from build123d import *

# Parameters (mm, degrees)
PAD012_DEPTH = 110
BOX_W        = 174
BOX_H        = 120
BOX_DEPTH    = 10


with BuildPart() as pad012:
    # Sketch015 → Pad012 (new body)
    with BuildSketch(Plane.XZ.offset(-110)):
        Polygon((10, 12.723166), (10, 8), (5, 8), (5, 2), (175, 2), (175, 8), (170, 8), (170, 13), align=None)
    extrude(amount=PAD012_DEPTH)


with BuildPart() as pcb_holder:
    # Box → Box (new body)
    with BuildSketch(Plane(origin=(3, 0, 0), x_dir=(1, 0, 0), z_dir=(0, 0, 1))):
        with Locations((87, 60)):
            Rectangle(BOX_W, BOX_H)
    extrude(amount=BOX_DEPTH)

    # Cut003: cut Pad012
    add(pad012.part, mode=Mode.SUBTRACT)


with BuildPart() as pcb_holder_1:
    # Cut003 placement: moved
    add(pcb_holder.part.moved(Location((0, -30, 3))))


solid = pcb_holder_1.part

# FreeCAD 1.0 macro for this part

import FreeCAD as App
import Part
import Sketcher


def add_polygon(sketch, points):
    """Adds a closed chain of lines whose ends are joined by coincident constraints."""
    first, n = sketch.GeometryCount, len(points)
    for a, b in zip(points, points[1:] + points[:1]):
        sketch.addGeometry(Part.LineSegment(App.Vector(*a, 0), App.Vector(*b, 0)), False)
    for i in range(n):
        sketch.addConstraint(Sketcher.Constraint("Coincident", first + i, 2, first + (i + 1) % n, 1))

doc = App.newDocument("Part")
body = doc.addObject("PartDesign::Body", "Body")

# Sketch on XZ plane
sketch1 = doc.addObject("Sketcher::SketchObject", "Sketch")
body.addObject(sketch1)
sketch1.AttachmentSupport = (doc.XZ_Plane, [""])
sketch1.MapMode = "FlatFace"
sketch1.AttachmentOffset = App.Placement(App.Vector(0, 0, -110), App.Rotation())
add_polygon(sketch1, [(10, 12.7), (10, 8), (5, 8), (5, 2), (175, 2), (175, 8), (170, 8), (170, 13)])  # lines 0-7
sketch1.addConstraint(Sketcher.Constraint("Vertical", 0))
sketch1.addConstraint(Sketcher.Constraint("Horizontal", 1))
sketch1.addConstraint(Sketcher.Constraint("Vertical", 2))
sketch1.addConstraint(Sketcher.Constraint("Horizontal", 3))
sketch1.addConstraint(Sketcher.Constraint("Vertical", 4))
sketch1.addConstraint(Sketcher.Constraint("Horizontal", 5))
sketch1.addConstraint(Sketcher.Constraint("Vertical", 6))
sketch1.addConstraint(Sketcher.Constraint("Horizontal", 1, 2, 4, 2))
sketch1.addConstraint(Sketcher.Constraint("Equal", 1, 5))
sketch1.addConstraint(Sketcher.Constraint("Equal", 5, 6))
sketch1.addConstraint(Sketcher.Constraint("DistanceX", 1, 2, 1, 1, 5.0))
sketch1.addConstraint(Sketcher.Constraint("DistanceX", 3, 1, 3, 2, 170.0))
sketch1.addConstraint(Sketcher.Constraint("DistanceY", 2, 2, 2, 1, 6.0))
sketch1.addConstraint(Sketcher.Constraint("DistanceX", -1, 1, 0, 2, 10.0))
sketch1.addConstraint(Sketcher.Constraint("DistanceY", -1, 1, 0, 2, 8.0))
sketch1.addConstraint(Sketcher.Constraint("DistanceY", 0, 2, 0, 1, 4.723166))
pad1 = doc.addObject("PartDesign::Pad", "Pad")
body.addObject(pad1)
pad1.Profile = sketch1
pad1.Length = 110
body2 = doc.addObject("PartDesign::Body", "Body001")

# Sketch on XY plane
sketch2 = doc.addObject("Sketcher::SketchObject", "Sketch001")
body2.addObject(sketch2)
sketch2.AttachmentSupport = (doc.getObject("XY_Plane001"), [""])
sketch2.MapMode = "FlatFace"
add_polygon(sketch2, [(3, 120), (3, 0), (177, 0), (177, 120)])  # lines 0-3
sketch2.addConstraint(Sketcher.Constraint("Vertical", 0))
sketch2.addConstraint(Sketcher.Constraint("Horizontal", 1))
sketch2.addConstraint(Sketcher.Constraint("Vertical", 2))
sketch2.addConstraint(Sketcher.Constraint("Horizontal", 3))
sketch2.addConstraint(Sketcher.Constraint("PointOnObject", 0, 2, -1))
sketch2.addConstraint(Sketcher.Constraint("DistanceX", 1, 1, 1, 2, 174.0))
sketch2.addConstraint(Sketcher.Constraint("DistanceY", 0, 2, 0, 1, 120.0))
sketch2.addConstraint(Sketcher.Constraint("DistanceX", -1, 1, 0, 2, 3.0))
pad2 = doc.addObject("PartDesign::Pad", "Pad001")
body2.addObject(pad2)
pad2.Profile = sketch2
pad2.Length = 10
doc.recompute()

boolean = doc.addObject("PartDesign::Boolean", "Boolean")
body2.addObject(boolean)
boolean.Type = "Cut"
boolean.addObjects([body])
body3 = doc.addObject("PartDesign::Body", "Body002")
doc.recompute()

body2.Placement = App.Placement(App.Vector(0, -30, 3), App.Rotation(App.Vector(0, 0, 1), 0))
boolean2 = doc.addObject("PartDesign::Boolean", "Boolean001")
body3.addObject(boolean2)
boolean2.Type = "Fuse"
boolean2.addObjects([body2])

doc.recompute()
